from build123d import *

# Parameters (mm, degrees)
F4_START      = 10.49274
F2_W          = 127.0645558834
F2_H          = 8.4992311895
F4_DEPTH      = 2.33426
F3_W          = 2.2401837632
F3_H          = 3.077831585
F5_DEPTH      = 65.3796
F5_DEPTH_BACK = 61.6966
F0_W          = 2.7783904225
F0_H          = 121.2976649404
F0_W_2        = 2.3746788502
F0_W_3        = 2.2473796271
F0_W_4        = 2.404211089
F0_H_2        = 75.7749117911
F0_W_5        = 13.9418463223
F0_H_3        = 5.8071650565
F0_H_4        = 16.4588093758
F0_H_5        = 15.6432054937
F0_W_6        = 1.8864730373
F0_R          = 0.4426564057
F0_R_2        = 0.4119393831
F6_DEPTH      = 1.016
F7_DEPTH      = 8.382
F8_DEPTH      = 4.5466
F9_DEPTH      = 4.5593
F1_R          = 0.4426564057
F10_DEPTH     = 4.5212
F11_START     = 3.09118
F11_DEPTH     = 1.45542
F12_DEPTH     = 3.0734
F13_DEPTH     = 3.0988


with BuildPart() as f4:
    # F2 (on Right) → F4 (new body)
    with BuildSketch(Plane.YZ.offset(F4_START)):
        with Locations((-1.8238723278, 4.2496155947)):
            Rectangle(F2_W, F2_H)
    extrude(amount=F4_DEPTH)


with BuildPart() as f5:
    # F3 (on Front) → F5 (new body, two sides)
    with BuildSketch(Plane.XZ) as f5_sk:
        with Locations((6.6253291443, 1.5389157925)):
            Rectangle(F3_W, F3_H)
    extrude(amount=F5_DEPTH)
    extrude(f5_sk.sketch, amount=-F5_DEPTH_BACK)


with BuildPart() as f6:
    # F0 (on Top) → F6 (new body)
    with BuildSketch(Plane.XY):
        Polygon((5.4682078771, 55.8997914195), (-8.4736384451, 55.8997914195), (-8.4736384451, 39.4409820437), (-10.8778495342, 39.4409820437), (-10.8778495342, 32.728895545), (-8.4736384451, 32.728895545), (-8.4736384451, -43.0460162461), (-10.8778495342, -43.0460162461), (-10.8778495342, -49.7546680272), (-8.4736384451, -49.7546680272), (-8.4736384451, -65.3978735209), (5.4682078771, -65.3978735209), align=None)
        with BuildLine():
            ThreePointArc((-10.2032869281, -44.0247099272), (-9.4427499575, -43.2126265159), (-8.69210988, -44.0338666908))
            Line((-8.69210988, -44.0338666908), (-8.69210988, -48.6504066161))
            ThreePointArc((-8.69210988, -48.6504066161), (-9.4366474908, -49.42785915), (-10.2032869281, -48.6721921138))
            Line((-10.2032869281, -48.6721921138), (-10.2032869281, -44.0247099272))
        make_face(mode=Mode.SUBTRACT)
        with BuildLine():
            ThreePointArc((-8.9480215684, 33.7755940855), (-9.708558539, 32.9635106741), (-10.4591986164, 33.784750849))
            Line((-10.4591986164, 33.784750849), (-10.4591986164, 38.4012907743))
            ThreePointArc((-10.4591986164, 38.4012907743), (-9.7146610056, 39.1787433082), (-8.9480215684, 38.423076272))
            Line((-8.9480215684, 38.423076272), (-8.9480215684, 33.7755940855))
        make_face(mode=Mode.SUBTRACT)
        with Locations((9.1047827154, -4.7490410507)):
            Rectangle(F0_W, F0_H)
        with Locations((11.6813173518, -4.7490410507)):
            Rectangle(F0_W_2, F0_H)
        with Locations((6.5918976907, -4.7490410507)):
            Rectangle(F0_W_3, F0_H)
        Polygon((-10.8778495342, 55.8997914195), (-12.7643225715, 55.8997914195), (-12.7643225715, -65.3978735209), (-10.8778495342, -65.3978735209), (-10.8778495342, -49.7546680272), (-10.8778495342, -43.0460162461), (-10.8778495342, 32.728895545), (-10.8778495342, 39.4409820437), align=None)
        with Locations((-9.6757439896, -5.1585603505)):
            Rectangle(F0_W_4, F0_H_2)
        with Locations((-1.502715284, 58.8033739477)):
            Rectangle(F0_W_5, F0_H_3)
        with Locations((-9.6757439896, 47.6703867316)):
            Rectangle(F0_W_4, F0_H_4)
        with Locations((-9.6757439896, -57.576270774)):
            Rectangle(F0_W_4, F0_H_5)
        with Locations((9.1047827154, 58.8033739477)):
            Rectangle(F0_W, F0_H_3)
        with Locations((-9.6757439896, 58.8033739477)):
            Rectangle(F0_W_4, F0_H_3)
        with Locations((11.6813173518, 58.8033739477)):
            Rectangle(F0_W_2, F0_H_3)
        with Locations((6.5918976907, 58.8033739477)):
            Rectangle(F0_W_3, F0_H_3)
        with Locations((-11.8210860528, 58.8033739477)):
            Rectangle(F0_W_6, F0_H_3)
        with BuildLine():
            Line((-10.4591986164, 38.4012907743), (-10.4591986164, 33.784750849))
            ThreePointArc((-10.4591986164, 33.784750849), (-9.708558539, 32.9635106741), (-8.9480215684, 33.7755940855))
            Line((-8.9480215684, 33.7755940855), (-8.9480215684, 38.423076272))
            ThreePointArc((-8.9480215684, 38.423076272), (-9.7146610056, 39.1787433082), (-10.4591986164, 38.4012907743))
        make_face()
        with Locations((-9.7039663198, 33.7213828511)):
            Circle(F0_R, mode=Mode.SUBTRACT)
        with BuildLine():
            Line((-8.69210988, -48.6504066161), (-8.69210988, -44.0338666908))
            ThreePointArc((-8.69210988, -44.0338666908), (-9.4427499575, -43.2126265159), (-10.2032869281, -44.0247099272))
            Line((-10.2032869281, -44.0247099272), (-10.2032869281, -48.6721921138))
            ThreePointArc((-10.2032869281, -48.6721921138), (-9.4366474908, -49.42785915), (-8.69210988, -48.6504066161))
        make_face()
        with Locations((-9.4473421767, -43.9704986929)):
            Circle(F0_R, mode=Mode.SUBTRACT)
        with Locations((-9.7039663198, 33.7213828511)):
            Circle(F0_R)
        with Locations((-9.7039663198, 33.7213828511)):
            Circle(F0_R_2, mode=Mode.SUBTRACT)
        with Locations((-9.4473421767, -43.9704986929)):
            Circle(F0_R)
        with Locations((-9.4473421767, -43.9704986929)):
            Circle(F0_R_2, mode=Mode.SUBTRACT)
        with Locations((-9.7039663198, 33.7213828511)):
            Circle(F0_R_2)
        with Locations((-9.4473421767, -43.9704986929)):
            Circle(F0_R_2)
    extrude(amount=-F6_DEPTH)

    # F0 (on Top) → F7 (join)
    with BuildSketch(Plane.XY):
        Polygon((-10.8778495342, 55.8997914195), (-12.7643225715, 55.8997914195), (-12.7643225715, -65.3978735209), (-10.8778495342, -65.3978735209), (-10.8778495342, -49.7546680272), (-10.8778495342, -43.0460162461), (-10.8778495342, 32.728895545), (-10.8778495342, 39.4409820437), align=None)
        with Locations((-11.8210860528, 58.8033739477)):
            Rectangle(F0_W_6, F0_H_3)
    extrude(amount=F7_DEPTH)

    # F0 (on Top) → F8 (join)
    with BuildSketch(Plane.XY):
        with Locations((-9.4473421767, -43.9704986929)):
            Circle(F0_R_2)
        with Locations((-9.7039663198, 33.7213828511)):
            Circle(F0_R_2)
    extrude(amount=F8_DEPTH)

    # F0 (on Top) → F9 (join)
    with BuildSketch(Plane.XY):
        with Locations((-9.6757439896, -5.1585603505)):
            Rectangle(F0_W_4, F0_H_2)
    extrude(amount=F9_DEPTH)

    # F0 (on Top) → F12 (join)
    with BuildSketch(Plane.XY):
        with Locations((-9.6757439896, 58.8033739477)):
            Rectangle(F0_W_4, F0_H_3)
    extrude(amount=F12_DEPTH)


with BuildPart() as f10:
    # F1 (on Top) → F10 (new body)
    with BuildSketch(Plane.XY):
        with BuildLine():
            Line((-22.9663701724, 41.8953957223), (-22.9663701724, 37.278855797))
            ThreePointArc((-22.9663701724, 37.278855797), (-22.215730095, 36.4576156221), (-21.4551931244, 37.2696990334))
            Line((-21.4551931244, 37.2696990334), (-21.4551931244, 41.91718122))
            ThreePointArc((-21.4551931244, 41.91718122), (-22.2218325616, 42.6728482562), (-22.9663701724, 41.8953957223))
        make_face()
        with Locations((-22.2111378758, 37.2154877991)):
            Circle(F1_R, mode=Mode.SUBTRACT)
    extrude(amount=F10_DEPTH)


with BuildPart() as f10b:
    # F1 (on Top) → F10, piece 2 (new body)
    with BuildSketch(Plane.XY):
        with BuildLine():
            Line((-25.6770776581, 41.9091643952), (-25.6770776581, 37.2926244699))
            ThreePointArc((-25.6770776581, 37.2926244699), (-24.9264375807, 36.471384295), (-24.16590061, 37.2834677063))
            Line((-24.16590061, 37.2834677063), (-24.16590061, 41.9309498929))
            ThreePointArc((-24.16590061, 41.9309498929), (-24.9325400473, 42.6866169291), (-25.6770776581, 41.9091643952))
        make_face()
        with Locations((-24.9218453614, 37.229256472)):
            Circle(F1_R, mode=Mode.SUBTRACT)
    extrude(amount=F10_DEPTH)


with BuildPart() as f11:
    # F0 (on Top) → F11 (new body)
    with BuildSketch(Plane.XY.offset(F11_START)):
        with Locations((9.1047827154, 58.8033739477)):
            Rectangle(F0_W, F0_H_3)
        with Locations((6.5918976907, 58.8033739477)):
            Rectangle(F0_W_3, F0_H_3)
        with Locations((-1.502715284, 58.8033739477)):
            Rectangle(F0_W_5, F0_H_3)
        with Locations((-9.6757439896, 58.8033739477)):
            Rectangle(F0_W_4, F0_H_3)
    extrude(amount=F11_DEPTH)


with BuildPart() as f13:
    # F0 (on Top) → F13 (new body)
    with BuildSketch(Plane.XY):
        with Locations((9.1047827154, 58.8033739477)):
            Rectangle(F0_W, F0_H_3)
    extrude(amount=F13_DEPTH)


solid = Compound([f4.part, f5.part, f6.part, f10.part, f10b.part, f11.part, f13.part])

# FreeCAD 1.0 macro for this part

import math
import FreeCAD as App
import Part
import Sketcher
Q = App.Units.Quantity

doc = App.newDocument("Part")
body = doc.addObject("PartDesign::Body", "Body")

sketch1 = body.newObject("Sketcher::SketchObject", "Sketch")
sketch1.AttachmentSupport = (doc.getObject("YZ_Plane"), [""])
sketch1.MapMode = "FlatFace"
sketch1.AttachmentOffset = App.Placement(App.Vector(0, 0, 0.4131 * 25.4), App.Rotation())
sketch1.addGeometry([
    Part.LineSegment(App.Vector(-65.35615, 8.499231, 0), App.Vector(-65.35615, 0, 0)),
    Part.LineSegment(App.Vector(-65.35615, 0, 0), App.Vector(61.708406, 0, 0)),
    Part.LineSegment(App.Vector(61.708406, 0, 0), App.Vector(61.708406, 8.499231, 0)),
    Part.LineSegment(App.Vector(61.708406, 8.499231, 0), App.Vector(-65.35615, 8.499231, 0)),
], False)
sketch1.addConstraint([
    Sketcher.Constraint("Coincident", 0, 2, 1, 1),
    Sketcher.Constraint("Coincident", 1, 2, 2, 1),
    Sketcher.Constraint("Coincident", 2, 2, 3, 1),
    Sketcher.Constraint("Coincident", 3, 2, 0, 1),
    Sketcher.Constraint("Vertical", 0),
    Sketcher.Constraint("Horizontal", 1),
    Sketcher.Constraint("Vertical", 2),
    Sketcher.Constraint("Horizontal", 3),
    Sketcher.Constraint("PointOnObject", 0, 2, -1),
    Sketcher.Constraint("DistanceY", 0, 2, 0, 1, Q("8.499231 mm")),
    Sketcher.Constraint("DistanceX", 1, 1, 1, 2, Q("127.064556 mm")),
    Sketcher.Constraint("DistanceX", 0, 2, -1, 1, Q("65.35615 mm")),
])
pad1 = body.newObject("PartDesign::Pad", "Pad")
pad1.Profile = sketch1
pad1.Length = Q("0.0919 in")
body2 = doc.addObject("PartDesign::Body", "Body001")

sketch2 = body2.newObject("Sketcher::SketchObject", "Sketch001")
sketch2.AttachmentSupport = (doc.getObject("XZ_Plane001"), [""])
sketch2.MapMode = "FlatFace"
sketch2.addGeometry([
    Part.LineSegment(App.Vector(5.505237, 3.077832, 0), App.Vector(5.505237, 0, 0)),
    Part.LineSegment(App.Vector(5.505237, 0, 0), App.Vector(7.745421, 0, 0)),
    Part.LineSegment(App.Vector(7.745421, 0, 0), App.Vector(7.745421, 3.077832, 0)),
    Part.LineSegment(App.Vector(7.745421, 3.077832, 0), App.Vector(5.505237, 3.077832, 0)),
], False)
sketch2.addConstraint([
    Sketcher.Constraint("Coincident", 0, 2, 1, 1),
    Sketcher.Constraint("Coincident", 1, 2, 2, 1),
    Sketcher.Constraint("Coincident", 2, 2, 3, 1),
    Sketcher.Constraint("Coincident", 3, 2, 0, 1),
    Sketcher.Constraint("Vertical", 0),
    Sketcher.Constraint("Horizontal", 1),
    Sketcher.Constraint("Vertical", 2),
    Sketcher.Constraint("Horizontal", 3),
    Sketcher.Constraint("PointOnObject", 0, 2, -1),
    Sketcher.Constraint("DistanceY", 0, 2, 0, 1, Q("3.077832 mm")),
    Sketcher.Constraint("DistanceX", 1, 1, 1, 2, Q("2.240184 mm")),
    Sketcher.Constraint("DistanceX", -1, 1, 1, 2, Q("7.745421 mm")),
])
pad2 = body2.newObject("PartDesign::Pad", "Pad001")
pad2.Profile = sketch2
pad2.Type = "TwoLengths"
pad2.Length = Q("2.574 in")
pad2.Length2 = Q("2.429 in")
body3 = doc.addObject("PartDesign::Body", "Body002")

sketch3 = body3.newObject("Sketcher::SketchObject", "Sketch002")
sketch3.AttachmentSupport = (doc.getObject("XY_Plane002"), [""])
sketch3.MapMode = "FlatFace"
sketch3.addGeometry([
    Part.LineSegment(App.Vector(-12.764323, -65.397874, 0), App.Vector(-8.473638, -65.397874, 0)),
    Part.LineSegment(App.Vector(-8.473638, -65.397874, 0), App.Vector(12.868657, -65.397874, 0)),
    Part.LineSegment(App.Vector(12.868657, -65.397874, 0), App.Vector(12.868657, 61.706956, 0)),
    Part.LineSegment(App.Vector(12.868657, 61.706956, 0), App.Vector(-12.764323, 61.706956, 0)),
    Part.LineSegment(App.Vector(-12.764323, 61.706956, 0), App.Vector(-12.764323, -65.397874, 0)),
], False)
sketch3.addConstraint([
    Sketcher.Constraint("Coincident", 0, 2, 1, 1),
    Sketcher.Constraint("Coincident", 1, 2, 2, 1),
    Sketcher.Constraint("Coincident", 2, 2, 3, 1),
    Sketcher.Constraint("Coincident", 3, 2, 4, 1),
    Sketcher.Constraint("Coincident", 4, 2, 0, 1),
    Sketcher.Constraint("Horizontal", 0),
    Sketcher.Constraint("Horizontal", 1),
    Sketcher.Constraint("Vertical", 2),
    Sketcher.Constraint("Horizontal", 3),
    Sketcher.Constraint("Vertical", 4),
    Sketcher.Constraint("DistanceX", 3, 2, 3, 1, Q("25.632979 mm")),
    Sketcher.Constraint("DistanceY", 2, 1, 2, 2, Q("127.10483 mm")),
    Sketcher.Constraint("DistanceX", 0, 1, 0, 2, Q("4.290684 mm")),
    Sketcher.Constraint("DistanceX", 0, 2, -1, 1, Q("8.473638 mm")),
    Sketcher.Constraint("DistanceY", 0, 2, -1, 1, Q("65.397874 mm")),
])
pad3 = body3.newObject("PartDesign::Pad", "Pad002")
pad3.Profile = sketch3
pad3.Length = Q("0.04 in")
pad3.Reversed = True

sketch4 = body3.newObject("Sketcher::SketchObject", "Sketch003")
sketch4.AttachmentSupport = (doc.getObject("XY_Plane002"), [""])
sketch4.MapMode = "FlatFace"
sketch4.addGeometry([
    Part.LineSegment(App.Vector(-12.764323, -65.397874, 0), App.Vector(-10.87785, -65.397874, 0)),
    Part.LineSegment(App.Vector(-10.87785, -65.397874, 0), App.Vector(-10.87785, 61.706956, 0)),
    Part.LineSegment(App.Vector(-10.87785, 61.706956, 0), App.Vector(-12.764323, 61.706956, 0)),
    Part.LineSegment(App.Vector(-12.764323, 61.706956, 0), App.Vector(-12.764323, -65.397874, 0)),
], False)
sketch4.addConstraint([
    Sketcher.Constraint("Coincident", 0, 2, 1, 1),
    Sketcher.Constraint("Coincident", 1, 2, 2, 1),
    Sketcher.Constraint("Coincident", 2, 2, 3, 1),
    Sketcher.Constraint("Coincident", 3, 2, 0, 1),
    Sketcher.Constraint("Horizontal", 0),
    Sketcher.Constraint("Vertical", 1),
    Sketcher.Constraint("Horizontal", 2),
    Sketcher.Constraint("Vertical", 3),
    Sketcher.Constraint("DistanceY", 1, 1, 1, 2, Q("127.10483 mm")),
    Sketcher.Constraint("DistanceX", 0, 1, 0, 2, Q("1.886473 mm")),
    Sketcher.Constraint("DistanceX", 0, 2, -1, 1, Q("10.87785 mm")),
    Sketcher.Constraint("DistanceY", 0, 2, -1, 1, Q("65.397874 mm")),
])
pad4 = body3.newObject("PartDesign::Pad", "Pad003")
pad4.Profile = sketch4
pad4.Length = Q("0.33 in")

sketch5 = body3.newObject("Sketcher::SketchObject", "Sketch004")
sketch5.AttachmentSupport = (doc.getObject("XY_Plane002"), [""])
sketch5.MapMode = "FlatFace"
sketch5.addGeometry([
    Part.Circle(App.Vector(-9.447342, -43.970499, 0), App.Vector(0, 0, 1), 0.411939),
    Part.Circle(App.Vector(-9.703966, 33.721383, 0), App.Vector(0, 0, 1), 0.411939),
], False)
sketch5.addConstraint([
    Sketcher.Constraint("Equal", 0, 1),
    Sketcher.Constraint("Diameter", 0, Q("0.823879 mm")),
    Sketcher.Constraint("DistanceY", 0, 3, -1, 1, Q("43.970499 mm")),
    Sketcher.Constraint("DistanceY", 0, 3, 1, 3, Q("77.691882 mm")),
    Sketcher.Constraint("DistanceX", 0, 3, -1, 1, Q("9.447342 mm")),
    Sketcher.Constraint("DistanceX", 1, 3, -1, 1, Q("9.703966 mm")),
])
pad5 = body3.newObject("PartDesign::Pad", "Pad004")
pad5.Profile = sketch5
pad5.Length = Q("0.179 in")

sketch6 = body3.newObject("Sketcher::SketchObject", "Sketch005")
sketch6.AttachmentSupport = (doc.getObject("XY_Plane002"), [""])
sketch6.MapMode = "FlatFace"
sketch6.addGeometry([
    Part.LineSegment(App.Vector(-10.87785, 32.728896, 0), App.Vector(-10.87785, -43.046016, 0)),
    Part.LineSegment(App.Vector(-10.87785, -43.046016, 0), App.Vector(-8.473638, -43.046016, 0)),
    Part.LineSegment(App.Vector(-8.473638, -43.046016, 0), App.Vector(-8.473638, 32.728896, 0)),
    Part.LineSegment(App.Vector(-8.473638, 32.728896, 0), App.Vector(-10.87785, 32.728896, 0)),
], False)
sketch6.addConstraint([
    Sketcher.Constraint("Coincident", 0, 2, 1, 1),
    Sketcher.Constraint("Coincident", 1, 2, 2, 1),
    Sketcher.Constraint("Coincident", 2, 2, 3, 1),
    Sketcher.Constraint("Coincident", 3, 2, 0, 1),
    Sketcher.Constraint("Vertical", 0),
    Sketcher.Constraint("Horizontal", 1),
    Sketcher.Constraint("Vertical", 2),
    Sketcher.Constraint("Horizontal", 3),
    Sketcher.Constraint("DistanceX", 1, 1, 1, 2, Q("2.404211 mm")),
    Sketcher.Constraint("DistanceY", 0, 2, 0, 1, Q("75.774912 mm")),
    Sketcher.Constraint("DistanceX", 0, 2, -1, 1, Q("10.87785 mm")),
    Sketcher.Constraint("DistanceY", 0, 2, -1, 1, Q("43.046016 mm")),
])
pad6 = body3.newObject("PartDesign::Pad", "Pad005")
pad6.Profile = sketch6
pad6.Length = Q("0.1795 in")

sketch7 = body3.newObject("Sketcher::SketchObject", "Sketch006")
sketch7.AttachmentSupport = (doc.getObject("XY_Plane002"), [""])
sketch7.MapMode = "FlatFace"
sketch7.addGeometry([
    Part.LineSegment(App.Vector(-10.87785, 61.706956, 0), App.Vector(-10.87785, 55.899791, 0)),
    Part.LineSegment(App.Vector(-10.87785, 55.899791, 0), App.Vector(-8.473638, 55.899791, 0)),
    Part.LineSegment(App.Vector(-8.473638, 55.899791, 0), App.Vector(-8.473638, 61.706956, 0)),
    Part.LineSegment(App.Vector(-8.473638, 61.706956, 0), App.Vector(-10.87785, 61.706956, 0)),
], False)
sketch7.addConstraint([
    Sketcher.Constraint("Coincident", 0, 2, 1, 1),
    Sketcher.Constraint("Coincident", 1, 2, 2, 1),
    Sketcher.Constraint("Coincident", 2, 2, 3, 1),
    Sketcher.Constraint("Coincident", 3, 2, 0, 1),
    Sketcher.Constraint("Vertical", 0),
    Sketcher.Constraint("Horizontal", 1),
    Sketcher.Constraint("Vertical", 2),
    Sketcher.Constraint("Horizontal", 3),
    Sketcher.Constraint("DistanceX", 1, 1, 1, 2, Q("2.404211 mm")),
    Sketcher.Constraint("DistanceY", 0, 2, 0, 1, Q("5.807165 mm")),
    Sketcher.Constraint("DistanceX", 0, 2, -1, 1, Q("10.87785 mm")),
    Sketcher.Constraint("DistanceY", -1, 1, 0, 2, Q("55.899791 mm")),
])
pad7 = body3.newObject("PartDesign::Pad", "Pad006")
pad7.Profile = sketch7
pad7.Length = Q("0.121 in")
body4 = doc.addObject("PartDesign::Body", "Body003")

sketch8 = body4.newObject("Sketcher::SketchObject", "Sketch007")
sketch8.AttachmentSupport = (doc.getObject("XY_Plane003"), [""])
sketch8.MapMode = "FlatFace"
sketch8.addGeometry([
    Part.LineSegment(App.Vector(-22.96637, 41.895396, 0), App.Vector(-22.96637, 37.278856, 0)),
    Part.ArcOfCircle(Part.Circle(App.Vector(-22.211138, 37.215488, 0), App.Vector(0, 0, 1), 0.757886), math.radians(175.203814), math.radians(364.101843)),
    Part.LineSegment(App.Vector(-21.455193, 37.269699, 0), App.Vector(-21.455193, 41.917181, 0)),
    Part.ArcOfCircle(Part.Circle(App.Vector(-22.210939, 41.917181, 0), App.Vector(0, 0, 1), 0.755746), math.radians(0), math.radians(181.651866)),
    Part.Circle(App.Vector(-22.211138, 37.215488, 0), App.Vector(0, 0, 1), 0.442656),
], False)
sketch8.addConstraint([
    Sketcher.Constraint("Coincident", 0, 2, 1, 1),
    Sketcher.Constraint("Coincident", 1, 2, 2, 1),
    Sketcher.Constraint("Tangent", 2, 2, 3, 1),
    Sketcher.Constraint("Coincident", 3, 2, 0, 1),
    Sketcher.Constraint("Vertical", 0),
    Sketcher.Constraint("Vertical", 2),
    Sketcher.Constraint("Coincident", 4, 3, 1, 3),
    Sketcher.Constraint("Diameter", 4, Q("0.885313 mm")),
    Sketcher.Constraint("Radius", 1, Q("0.757886 mm")),
    Sketcher.Constraint("Radius", 3, Q("0.755746 mm")),
    Sketcher.Constraint("DistanceY", 0, 2, 0, 1, Q("4.61654 mm")),
    Sketcher.Constraint("DistanceY", -1, 1, 1, 2, Q("37.269699 mm")),
    Sketcher.Constraint("DistanceX", 1, 3, 3, 3, Q("0.000199 mm")),
    Sketcher.Constraint("DistanceY", 2, 1, 2, 2, Q("4.647482 mm")),
    Sketcher.Constraint("DistanceX", 3, 3, -1, 1, Q("22.210939 mm")),
])
pad8 = body4.newObject("PartDesign::Pad", "Pad007")
pad8.Profile = sketch8
pad8.Length = Q("0.178 in")
body5 = doc.addObject("PartDesign::Body", "Body004")

sketch9 = body5.newObject("Sketcher::SketchObject", "Sketch008")
sketch9.AttachmentSupport = (doc.getObject("XY_Plane004"), [""])
sketch9.MapMode = "FlatFace"
sketch9.addGeometry([
    Part.LineSegment(App.Vector(-25.677078, 41.909164, 0), App.Vector(-25.677078, 37.292624, 0)),
    Part.ArcOfCircle(Part.Circle(App.Vector(-24.921845, 37.229256, 0), App.Vector(0, 0, 1), 0.757886), math.radians(175.203814), math.radians(364.101843)),
    Part.LineSegment(App.Vector(-24.165901, 37.283468, 0), App.Vector(-24.165901, 41.93095, 0)),
    Part.ArcOfCircle(Part.Circle(App.Vector(-24.921646, 41.93095, 0), App.Vector(0, 0, 1), 0.755746), math.radians(0), math.radians(181.651866)),
    Part.Circle(App.Vector(-24.921845, 37.229256, 0), App.Vector(0, 0, 1), 0.442656),
], False)
sketch9.addConstraint([
    Sketcher.Constraint("Coincident", 0, 2, 1, 1),
    Sketcher.Constraint("Coincident", 1, 2, 2, 1),
    Sketcher.Constraint("Tangent", 2, 2, 3, 1),
    Sketcher.Constraint("Coincident", 3, 2, 0, 1),
    Sketcher.Constraint("Vertical", 0),
    Sketcher.Constraint("Vertical", 2),
    Sketcher.Constraint("Coincident", 4, 3, 1, 3),
    Sketcher.Constraint("Diameter", 4, Q("0.885313 mm")),
    Sketcher.Constraint("Radius", 1, Q("0.757886 mm")),
    Sketcher.Constraint("Radius", 3, Q("0.755746 mm")),
    Sketcher.Constraint("DistanceY", 0, 2, 0, 1, Q("4.61654 mm")),
    Sketcher.Constraint("DistanceX", 1, 2, -1, 1, Q("24.165901 mm")),
    Sketcher.Constraint("DistanceX", 1, 3, 3, 3, Q("0.000199 mm")),
    Sketcher.Constraint("DistanceY", 2, 1, 2, 2, Q("4.647482 mm")),
    Sketcher.Constraint("DistanceY", -1, 1, 3, 3, Q("41.93095 mm")),
])
pad9 = body5.newObject("PartDesign::Pad", "Pad008")
pad9.Profile = sketch9
pad9.Length = Q("0.178 in")
body6 = doc.addObject("PartDesign::Body", "Body005")

sketch10 = body6.newObject("Sketcher::SketchObject", "Sketch009")
sketch10.AttachmentSupport = (doc.getObject("XY_Plane005"), [""])
sketch10.MapMode = "FlatFace"
sketch10.AttachmentOffset = App.Placement(App.Vector(0, 0, 0.1217 * 25.4), App.Rotation())
sketch10.addGeometry([
    Part.LineSegment(App.Vector(10.493978, 55.899791, 0), App.Vector(10.493978, 61.706956, 0)),
    Part.LineSegment(App.Vector(10.493978, 61.706956, 0), App.Vector(-10.87785, 61.706956, 0)),
    Part.LineSegment(App.Vector(-10.87785, 61.706956, 0), App.Vector(-10.87785, 55.899791, 0)),
    Part.LineSegment(App.Vector(-10.87785, 55.899791, 0), App.Vector(10.493978, 55.899791, 0)),
], False)
sketch10.addConstraint([
    Sketcher.Constraint("Coincident", 0, 2, 1, 1),
    Sketcher.Constraint("Coincident", 1, 2, 2, 1),
    Sketcher.Constraint("Coincident", 2, 2, 3, 1),
    Sketcher.Constraint("Coincident", 3, 2, 0, 1),
    Sketcher.Constraint("Vertical", 0),
    Sketcher.Constraint("Horizontal", 1),
    Sketcher.Constraint("Vertical", 2),
    Sketcher.Constraint("Horizontal", 3),
    Sketcher.Constraint("DistanceX", 1, 2, 1, 1, Q("21.371827 mm")),
    Sketcher.Constraint("DistanceY", 0, 1, 0, 2, Q("5.807165 mm")),
    Sketcher.Constraint("DistanceX", 1, 2, -1, 1, Q("10.87785 mm")),
    Sketcher.Constraint("DistanceY", -1, 1, 2, 2, Q("55.899791 mm")),
])
pad10 = body6.newObject("PartDesign::Pad", "Pad009")
pad10.Profile = sketch10
pad10.Length = Q("0.0573 in")
body7 = doc.addObject("PartDesign::Body", "Body006")

sketch11 = body7.newObject("Sketcher::SketchObject", "Sketch010")
sketch11.AttachmentSupport = (doc.getObject("XY_Plane006"), [""])
sketch11.MapMode = "FlatFace"
sketch11.addGeometry([
    Part.LineSegment(App.Vector(7.715588, 61.706956, 0), App.Vector(7.715588, 55.899791, 0)),
    Part.LineSegment(App.Vector(7.715588, 55.899791, 0), App.Vector(10.493978, 55.899791, 0)),
    Part.LineSegment(App.Vector(10.493978, 55.899791, 0), App.Vector(10.493978, 61.706956, 0)),
    Part.LineSegment(App.Vector(10.493978, 61.706956, 0), App.Vector(7.715588, 61.706956, 0)),
], False)
sketch11.addConstraint([
    Sketcher.Constraint("Coincident", 0, 2, 1, 1),
    Sketcher.Constraint("Coincident", 1, 2, 2, 1),
    Sketcher.Constraint("Coincident", 2, 2, 3, 1),
    Sketcher.Constraint("Coincident", 3, 2, 0, 1),
    Sketcher.Constraint("Vertical", 0),
    Sketcher.Constraint("Horizontal", 1),
    Sketcher.Constraint("Vertical", 2),
    Sketcher.Constraint("Horizontal", 3),
    Sketcher.Constraint("DistanceX", 1, 1, 1, 2, Q("2.77839 mm")),
    Sketcher.Constraint("DistanceY", 0, 2, 0, 1, Q("5.807165 mm")),
    Sketcher.Constraint("DistanceY", -1, 1, 0, 2, Q("55.899791 mm")),
    Sketcher.Constraint("DistanceX", -1, 1, 0, 2, Q("7.715588 mm")),
])
pad11 = body7.newObject("PartDesign::Pad", "Pad010")
pad11.Profile = sketch11
pad11.Length = Q("0.122 in")

doc.recompute()
